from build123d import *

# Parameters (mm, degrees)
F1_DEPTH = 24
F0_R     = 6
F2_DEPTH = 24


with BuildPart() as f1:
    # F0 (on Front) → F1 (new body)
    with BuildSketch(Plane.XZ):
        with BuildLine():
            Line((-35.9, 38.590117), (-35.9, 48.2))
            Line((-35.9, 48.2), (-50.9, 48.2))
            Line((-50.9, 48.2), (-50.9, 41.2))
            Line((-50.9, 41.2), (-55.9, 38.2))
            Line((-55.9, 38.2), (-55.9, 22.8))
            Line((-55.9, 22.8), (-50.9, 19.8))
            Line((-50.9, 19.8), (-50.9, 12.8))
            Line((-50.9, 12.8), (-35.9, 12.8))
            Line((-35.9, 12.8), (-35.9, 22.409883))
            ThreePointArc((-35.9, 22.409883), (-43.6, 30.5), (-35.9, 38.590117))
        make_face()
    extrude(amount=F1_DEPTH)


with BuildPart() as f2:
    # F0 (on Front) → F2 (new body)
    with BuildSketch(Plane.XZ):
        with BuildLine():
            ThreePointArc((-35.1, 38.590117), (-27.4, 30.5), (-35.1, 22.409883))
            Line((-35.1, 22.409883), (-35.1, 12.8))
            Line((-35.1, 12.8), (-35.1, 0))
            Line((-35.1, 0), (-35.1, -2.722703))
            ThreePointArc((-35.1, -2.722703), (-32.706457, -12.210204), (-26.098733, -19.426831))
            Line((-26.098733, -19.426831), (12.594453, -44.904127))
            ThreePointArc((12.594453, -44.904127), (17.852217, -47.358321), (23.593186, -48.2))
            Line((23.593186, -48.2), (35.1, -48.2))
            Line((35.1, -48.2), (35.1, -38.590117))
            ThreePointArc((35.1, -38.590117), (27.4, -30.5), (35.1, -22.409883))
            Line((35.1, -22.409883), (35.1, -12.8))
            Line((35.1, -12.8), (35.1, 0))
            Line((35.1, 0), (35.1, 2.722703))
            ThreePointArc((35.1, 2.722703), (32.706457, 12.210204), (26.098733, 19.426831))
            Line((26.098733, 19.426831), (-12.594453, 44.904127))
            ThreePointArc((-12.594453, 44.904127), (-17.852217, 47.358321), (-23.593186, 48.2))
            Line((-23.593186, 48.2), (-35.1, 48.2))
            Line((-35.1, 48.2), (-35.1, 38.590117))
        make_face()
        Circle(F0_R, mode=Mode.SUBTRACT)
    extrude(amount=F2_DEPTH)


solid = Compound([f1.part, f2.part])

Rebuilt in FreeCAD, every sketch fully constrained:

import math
import FreeCAD as App
import Part
import Sketcher

V = App.Vector

doc = App.newDocument("Part")
body = doc.addObject("PartDesign::Body", "Body")

# Sketch on XZ plane
sketch1 = body.newObject("Sketcher::SketchObject", "Sketch")
sketch1.AttachmentSupport = (doc.getObject("XZ_Plane"), [""])
sketch1.MapMode = "FlatFace"
sketch1.addGeometry([
    Part.LineSegment(V(-35.9, 38.590117, 0), V(-35.9, 48.2, 0)),  # 0
    Part.LineSegment(V(-35.9, 48.2, 0), V(-50.9, 48.2, 0)),  # 1
    Part.LineSegment(V(-50.9, 48.2, 0), V(-50.9, 41.2, 0)),  # 2
    Part.LineSegment(V(-50.9, 41.2, 0), V(-55.9, 38.2, 0)),  # 3
    Part.LineSegment(V(-55.9, 38.2, 0), V(-55.9, 22.8, 0)),  # 4
    Part.LineSegment(V(-55.9, 22.8, 0), V(-50.9, 19.8, 0)),  # 5
    Part.LineSegment(V(-50.9, 19.8, 0), V(-50.9, 12.8, 0)),  # 6
    Part.LineSegment(V(-50.9, 12.8, 0), V(-35.9, 12.8, 0)),  # 7
    Part.LineSegment(V(-35.9, 12.8, 0), V(-35.9, 22.409883, 0)),  # 8
    Part.ArcOfCircle(Part.Circle(V(-35.5, 30.5, 0), V(0, 0, 1), 8.1), math.radians(92.830569), math.radians(267.169431)),  # 9
], False)
sketch1.addConstraint([
    Sketcher.Constraint("Coincident", 0, 2, 1, 1),
    Sketcher.Constraint("Coincident", 1, 2, 2, 1),
    Sketcher.Constraint("Coincident", 2, 2, 3, 1),
    Sketcher.Constraint("Coincident", 3, 2, 4, 1),
    Sketcher.Constraint("Coincident", 4, 2, 5, 1),
    Sketcher.Constraint("Coincident", 5, 2, 6, 1),
    Sketcher.Constraint("Coincident", 6, 2, 7, 1),
    Sketcher.Constraint("Coincident", 7, 2, 8, 1),
    Sketcher.Constraint("Coincident", 8, 2, 9, 2),
    Sketcher.Constraint("Coincident", 9, 1, 0, 1),
    Sketcher.Constraint("Vertical", 0),
    Sketcher.Constraint("Horizontal", 1),
    Sketcher.Constraint("Vertical", 2),
    Sketcher.Constraint("Vertical", 4),
    Sketcher.Constraint("Vertical", 6),
    Sketcher.Constraint("Horizontal", 7),
    Sketcher.Constraint("Vertical", 8),
    Sketcher.Constraint("Vertical", 2, 2, 5, 2),
    Sketcher.Constraint("Vertical", 0, 2, 7, 2),
    Sketcher.Constraint("Equal", 2, 6),
    Sketcher.Constraint("Equal", 0, 8),
    Sketcher.Constraint("Equal", 3, 5),
    Sketcher.Constraint("Radius", 9, 8.1),
    Sketcher.Constraint("DistanceX", 1, 2, 1, 1, 15.0),
    Sketcher.Constraint("DistanceY", 2, 2, 2, 1, 7.0),
    Sketcher.Constraint("DistanceY", 4, 2, 4, 1, 15.4),
    Sketcher.Constraint("DistanceX", 3, 2, 2, 2, 5.0),
    Sketcher.Constraint("DistanceY", 3, 2, 2, 2, 3.0),
    Sketcher.Constraint("DistanceX", 9, 3, -1, 1, 35.5),
    Sketcher.Constraint("DistanceY", -1, 1, 9, 3, 30.5),
    Sketcher.Constraint("DistanceX", 0, 2, -1, 1, 35.9),
])
pad1 = body.newObject("PartDesign::Pad", "Pad")
pad1.Profile = sketch1
pad1.Length = 24
body2 = doc.addObject("PartDesign::Body", "Body001")

# Sketch on XZ plane
sketch2 = body2.newObject("Sketcher::SketchObject", "Sketch001")
sketch2.AttachmentSupport = (doc.getObject("XZ_Plane001"), [""])
sketch2.MapMode = "FlatFace"
sketch2.addGeometry([
    Part.ArcOfCircle(Part.Circle(V(-35.5, 30.5, 0), V(0, 0, 1), 8.1), math.radians(-87.169431), math.radians(87.169431)),  # 0
    Part.LineSegment(V(-35.1, 22.409883, 0), V(-35.1, -2.722703, 0)),  # 1
    Part.ArcOfCircle(Part.Circle(V(-15.099999, -2.722703, 0), V(0, 0, 1), 20.000001), math.radians(-179.999999), math.radians(-123.362669)),  # 2
    Part.LineSegment(V(-26.098733, -19.426831, 0), V(12.594453, -44.904127, 0)),  # 3
    Part.ArcOfCircle(Part.Circle(V(23.593187, -28.199998, 0), V(0, 0, 1), 20.000002), math.radians(-123.362667), math.radians(-90.000004)),  # 4
    Part.LineSegment(V(23.593186, -48.2, 0), V(35.1, -48.2, 0)),  # 5
    Part.LineSegment(V(35.1, -48.2, 0), V(35.1, -38.590117, 0)),  # 6
    Part.ArcOfCircle(Part.Circle(V(35.5, -30.5, 0), V(0, 0, 1), 8.1), math.radians(92.830569), math.radians(267.169431)),  # 7
    Part.LineSegment(V(35.1, -22.409883, 0), V(35.1, 2.722703, 0)),  # 8
    Part.ArcOfCircle(Part.Circle(V(15.099999, 2.722703, 0), V(0, 0, 1), 20.000001), math.radians(0.000001), math.radians(56.637331)),  # 9
    Part.LineSegment(V(26.098733, 19.426831, 0), V(-12.594453, 44.904127, 0)),  # 10
    Part.ArcOfCircle(Part.Circle(V(-23.593187, 28.199998, 0), V(0, 0, 1), 20.000002), math.radians(56.637333), math.radians(89.999996)),  # 11
    Part.LineSegment(V(-23.593186, 48.2, 0), V(-35.1, 48.2, 0)),  # 12
    Part.LineSegment(V(-35.1, 48.2, 0), V(-35.1, 38.590117, 0)),  # 13
    Part.Circle(V(0, 0, 0), V(0, 0, 1), 6),  # 14
], False)
sketch2.addConstraint([
    Sketcher.Constraint("Coincident", 0, 1, 1, 1),
    Sketcher.Constraint("Tangent", 1, 2, 2, 1),
    Sketcher.Constraint("Tangent", 2, 2, 3, 1),
    Sketcher.Constraint("Tangent", 3, 2, 4, 1),
    Sketcher.Constraint("Tangent", 4, 2, 5, 1),
    Sketcher.Constraint("Coincident", 5, 2, 6, 1),
    Sketcher.Constraint("Coincident", 6, 2, 7, 2),
    Sketcher.Constraint("Coincident", 7, 1, 8, 1),
    Sketcher.Constraint("Tangent", 8, 2, 9, 1),
    Sketcher.Constraint("Tangent", 9, 2, 10, 1),
    Sketcher.Constraint("Tangent", 10, 2, 11, 1),
    Sketcher.Constraint("Tangent", 11, 2, 12, 1),
    Sketcher.Constraint("Coincident", 12, 2, 13, 1),
    Sketcher.Constraint("Coincident", 13, 2, 0, 2),
    Sketcher.Constraint("Vertical", 1),
    Sketcher.Constraint("Horizontal", 5),
    Sketcher.Constraint("Vertical", 6),
    Sketcher.Constraint("Vertical", 8),
    Sketcher.Constraint("Horizontal", 12),
    Sketcher.Constraint("Vertical", 13),
    Sketcher.Constraint("Coincident", 14, 3, -1, 1),
    Sketcher.Constraint("Equal", 2, 4),
    Sketcher.Constraint("Equal", 0, 7),
    Sketcher.Constraint("Equal", 4, 9),
    Sketcher.Constraint("Equal", 9, 11),
    Sketcher.Constraint("Symmetric", 0, 3, 7, 3, -1, 1),
    Sketcher.Constraint("Symmetric", 2, 3, 9, 3, -1, 1),
    Sketcher.Constraint("Symmetric", 4, 3, 11, 3, -1, 1),
    Sketcher.Constraint("Vertical", 6, 2, 7, 1),
    Sketcher.Constraint("Vertical", 1, 2, 12, 2),
    Sketcher.Constraint("Diameter", 14, 12.0),
    Sketcher.Constraint("Radius", 2, 20.000001),
    Sketcher.Constraint("Radius", 0, 8.1),
    Sketcher.Constraint("DistanceX", 0, 3, 7, 3, 70.999999),
    Sketcher.Constraint("DistanceY", 7, 3, 0, 3, 61.0),
    Sketcher.Constraint("DistanceX", 2, 3, -1, 1, 15.099999),
    Sketcher.Constraint("DistanceY", 4, 2, -1, 1, 48.2),
    Sketcher.Constraint("DistanceY", 4, 3, 9, 3, 30.9227),
    Sketcher.Constraint("DistanceX", 5, 1, 5, 2, 11.506814),
])
pad2 = body2.newObject("PartDesign::Pad", "Pad001")
pad2.Profile = sketch2
pad2.Length = 24

doc.recompute()
